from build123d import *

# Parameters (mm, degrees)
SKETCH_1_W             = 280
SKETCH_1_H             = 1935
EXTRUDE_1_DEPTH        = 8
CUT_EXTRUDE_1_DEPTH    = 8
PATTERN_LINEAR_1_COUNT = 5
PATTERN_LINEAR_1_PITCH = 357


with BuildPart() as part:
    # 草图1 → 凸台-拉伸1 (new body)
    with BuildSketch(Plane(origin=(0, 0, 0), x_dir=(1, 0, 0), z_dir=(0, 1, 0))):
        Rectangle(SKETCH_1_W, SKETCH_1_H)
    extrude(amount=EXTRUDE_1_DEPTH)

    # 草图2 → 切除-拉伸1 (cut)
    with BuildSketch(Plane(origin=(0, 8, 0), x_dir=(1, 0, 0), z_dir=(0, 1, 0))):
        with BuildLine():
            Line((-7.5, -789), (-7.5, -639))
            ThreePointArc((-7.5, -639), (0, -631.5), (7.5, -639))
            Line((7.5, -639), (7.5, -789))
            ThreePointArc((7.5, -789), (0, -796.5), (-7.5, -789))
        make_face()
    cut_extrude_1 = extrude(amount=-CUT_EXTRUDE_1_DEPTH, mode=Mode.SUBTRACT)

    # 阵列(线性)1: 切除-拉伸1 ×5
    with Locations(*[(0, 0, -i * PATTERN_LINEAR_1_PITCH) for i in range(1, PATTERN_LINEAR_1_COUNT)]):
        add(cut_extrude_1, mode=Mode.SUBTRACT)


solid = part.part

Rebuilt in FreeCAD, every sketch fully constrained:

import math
import FreeCAD as App
import Part
import Sketcher
Q = App.Units.Quantity


def add_polygon(sketch, points):
    """Adds a closed chain of lines whose ends are joined by coincident constraints."""
    first, n = sketch.GeometryCount, len(points)
    for a, b in zip(points, points[1:] + points[:1]):
        sketch.addGeometry(Part.LineSegment(App.Vector(*a, 0), App.Vector(*b, 0)), False)
    for i in range(n):
        sketch.addConstraint(Sketcher.Constraint("Coincident", first + i, 2, first + (i + 1) % n, 1))

doc = App.newDocument("Part")
body = doc.addObject("PartDesign::Body", "Body")

# Sketch on XZ plane
sketch1 = doc.addObject("Sketcher::SketchObject", "Sketch")
body.addObject(sketch1)
sketch1.AttachmentSupport = (doc.XZ_Plane, [""])
sketch1.MapMode = "FlatFace"
add_polygon(sketch1, [(-140, -967.5), (-140, 967.5), (140, 967.5), (140, -967.5)])  # lines 0-3
sketch1.addConstraint([
    Sketcher.Constraint("Vertical", 0),
    Sketcher.Constraint("Horizontal", 1),
    Sketcher.Constraint("Vertical", 2),
    Sketcher.Constraint("Horizontal", 3),
    Sketcher.Constraint("Symmetric", 0, 2, 2, 2, -1, 1),
    Sketcher.Constraint("DistanceX", 1, 1, 1, 2, Q("280 mm")),
    Sketcher.Constraint("DistanceY", 0, 1, 0, 2, Q("1935 mm")),
])
pad1 = doc.addObject("PartDesign::Pad", "Pad")
body.addObject(pad1)
pad1.Profile = sketch1
pad1.Length = 8
pad1.Reversed = True

# Sketch on XZ plane
sketch2 = doc.addObject("Sketcher::SketchObject", "Sketch001")
body.addObject(sketch2)
sketch2.AttachmentSupport = (doc.XZ_Plane, [""])
sketch2.MapMode = "FlatFace"
sketch2.AttachmentOffset = App.Placement(App.Vector(0, 0, -8), App.Rotation())
sketch2.addGeometry([
    Part.LineSegment(App.Vector(-7.5, 639, 0), App.Vector(-7.5, 789, 0)),
    Part.ArcOfCircle(Part.Circle(App.Vector(0, 789, 0), App.Vector(0, 0, 1), 7.5), math.radians(0), math.radians(180)),
    Part.LineSegment(App.Vector(7.5, 789, 0), App.Vector(7.5, 639, 0)),
    Part.ArcOfCircle(Part.Circle(App.Vector(0, 639, 0), App.Vector(0, 0, 1), 7.5), math.radians(180), math.radians(360)),
], False)
sketch2.addConstraint([
    Sketcher.Constraint("Tangent", 0, 2, 1, 2),
    Sketcher.Constraint("Tangent", 1, 1, 2, 1),
    Sketcher.Constraint("Tangent", 2, 2, 3, 2),
    Sketcher.Constraint("Tangent", 3, 1, 0, 1),
    Sketcher.Constraint("Vertical", 0),
    Sketcher.Constraint("Vertical", 2),
    Sketcher.Constraint("PointOnObject", 1, 3, -2),
    Sketcher.Constraint("Radius", 1, Q("7.5 mm")),
    Sketcher.Constraint("DistanceY", 0, 1, 0, 2, Q("150 mm")),
    Sketcher.Constraint("DistanceY", -1, 1, 1, 3, Q("789 mm")),
])
pocket1 = doc.addObject("PartDesign::Pocket", "Pocket")
body.addObject(pocket1)
pocket1.Profile = sketch2
pocket1.Length = 8
pocket1.Reversed = True
doc.recompute()

linearpattern = doc.addObject("PartDesign::LinearPattern", "LinearPattern")
body.addObject(linearpattern)
linearpattern.Originals = [pocket1]
linearpattern.Direction = (doc.Z_Axis, [""])
linearpattern.Mode = "offset"
linearpattern.Offset = 357
linearpattern.Occurrences = 5
linearpattern.Reversed = True
body.Tip = linearpattern

doc.recompute()
